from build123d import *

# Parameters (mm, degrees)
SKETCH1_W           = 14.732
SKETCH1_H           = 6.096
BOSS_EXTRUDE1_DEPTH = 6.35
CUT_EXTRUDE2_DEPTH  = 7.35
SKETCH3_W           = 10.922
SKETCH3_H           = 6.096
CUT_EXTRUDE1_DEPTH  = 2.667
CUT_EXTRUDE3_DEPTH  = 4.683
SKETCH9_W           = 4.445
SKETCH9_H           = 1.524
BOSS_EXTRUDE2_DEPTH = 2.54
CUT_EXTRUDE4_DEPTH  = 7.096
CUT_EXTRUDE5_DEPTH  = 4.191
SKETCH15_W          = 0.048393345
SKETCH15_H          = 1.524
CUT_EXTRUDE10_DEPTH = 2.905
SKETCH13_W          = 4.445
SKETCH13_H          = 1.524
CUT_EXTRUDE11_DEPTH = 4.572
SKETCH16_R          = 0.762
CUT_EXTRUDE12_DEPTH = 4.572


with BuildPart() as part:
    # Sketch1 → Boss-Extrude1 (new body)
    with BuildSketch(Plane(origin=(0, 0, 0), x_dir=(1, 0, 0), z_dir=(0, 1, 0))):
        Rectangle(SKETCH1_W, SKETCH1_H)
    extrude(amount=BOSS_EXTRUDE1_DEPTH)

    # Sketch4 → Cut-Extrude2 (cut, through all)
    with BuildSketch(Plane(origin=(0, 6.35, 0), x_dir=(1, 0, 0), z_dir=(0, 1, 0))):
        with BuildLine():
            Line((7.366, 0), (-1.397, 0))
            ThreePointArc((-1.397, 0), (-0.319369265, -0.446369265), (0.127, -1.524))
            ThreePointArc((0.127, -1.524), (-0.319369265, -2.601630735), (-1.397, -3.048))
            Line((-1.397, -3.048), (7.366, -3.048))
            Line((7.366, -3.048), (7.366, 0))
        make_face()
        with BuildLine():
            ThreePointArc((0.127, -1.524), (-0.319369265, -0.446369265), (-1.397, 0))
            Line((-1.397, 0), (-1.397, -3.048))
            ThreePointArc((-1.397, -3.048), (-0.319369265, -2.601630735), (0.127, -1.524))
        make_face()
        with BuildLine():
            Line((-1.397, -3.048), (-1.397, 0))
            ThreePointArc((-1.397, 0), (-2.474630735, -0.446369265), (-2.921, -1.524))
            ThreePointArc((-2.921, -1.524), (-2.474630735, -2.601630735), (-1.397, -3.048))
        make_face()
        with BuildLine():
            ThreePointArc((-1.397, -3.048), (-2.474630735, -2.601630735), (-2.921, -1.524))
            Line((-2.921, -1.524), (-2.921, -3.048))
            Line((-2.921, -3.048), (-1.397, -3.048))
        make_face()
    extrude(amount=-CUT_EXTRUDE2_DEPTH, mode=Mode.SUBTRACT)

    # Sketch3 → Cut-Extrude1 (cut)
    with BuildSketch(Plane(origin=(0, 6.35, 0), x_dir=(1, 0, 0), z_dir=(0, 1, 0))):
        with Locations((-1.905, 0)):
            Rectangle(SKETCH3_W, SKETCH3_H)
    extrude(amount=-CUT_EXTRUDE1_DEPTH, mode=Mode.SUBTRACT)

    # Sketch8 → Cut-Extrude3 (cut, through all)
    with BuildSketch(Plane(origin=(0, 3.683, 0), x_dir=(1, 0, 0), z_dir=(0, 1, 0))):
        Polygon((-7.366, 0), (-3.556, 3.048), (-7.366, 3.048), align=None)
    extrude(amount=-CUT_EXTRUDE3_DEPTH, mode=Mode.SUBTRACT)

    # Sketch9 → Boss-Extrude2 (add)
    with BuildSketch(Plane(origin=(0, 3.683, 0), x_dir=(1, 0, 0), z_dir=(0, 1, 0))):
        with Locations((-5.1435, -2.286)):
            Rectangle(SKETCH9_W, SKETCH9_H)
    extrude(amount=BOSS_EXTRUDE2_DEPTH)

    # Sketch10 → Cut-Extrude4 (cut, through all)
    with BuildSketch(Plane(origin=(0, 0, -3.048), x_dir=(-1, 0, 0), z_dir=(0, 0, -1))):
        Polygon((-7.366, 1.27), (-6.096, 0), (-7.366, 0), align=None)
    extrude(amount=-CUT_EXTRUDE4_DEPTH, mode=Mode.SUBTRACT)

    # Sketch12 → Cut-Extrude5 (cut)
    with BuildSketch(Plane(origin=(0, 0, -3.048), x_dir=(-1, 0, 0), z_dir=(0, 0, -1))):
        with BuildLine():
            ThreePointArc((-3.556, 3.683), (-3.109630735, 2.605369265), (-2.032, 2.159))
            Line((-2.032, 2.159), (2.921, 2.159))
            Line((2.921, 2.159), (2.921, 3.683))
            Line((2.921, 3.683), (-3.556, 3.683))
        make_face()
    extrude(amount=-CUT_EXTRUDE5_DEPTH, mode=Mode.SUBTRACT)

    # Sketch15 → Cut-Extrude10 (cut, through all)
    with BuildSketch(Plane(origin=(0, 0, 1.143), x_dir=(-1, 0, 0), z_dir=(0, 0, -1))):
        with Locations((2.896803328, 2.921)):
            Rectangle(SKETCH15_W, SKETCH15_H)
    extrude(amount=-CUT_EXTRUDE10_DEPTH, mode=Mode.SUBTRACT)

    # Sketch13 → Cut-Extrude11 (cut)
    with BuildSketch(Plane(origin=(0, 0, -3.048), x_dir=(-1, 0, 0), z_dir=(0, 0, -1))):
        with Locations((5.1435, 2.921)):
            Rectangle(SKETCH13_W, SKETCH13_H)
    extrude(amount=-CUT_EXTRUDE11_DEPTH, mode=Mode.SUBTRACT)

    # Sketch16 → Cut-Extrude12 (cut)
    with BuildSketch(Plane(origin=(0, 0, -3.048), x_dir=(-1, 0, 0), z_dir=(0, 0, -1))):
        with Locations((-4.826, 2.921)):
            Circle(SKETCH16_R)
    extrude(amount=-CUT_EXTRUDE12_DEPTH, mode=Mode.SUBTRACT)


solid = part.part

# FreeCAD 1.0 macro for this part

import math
import FreeCAD as App
import Part
import Sketcher
from FreeCAD import Vector
Q = App.Units.Quantity


def add_polygon(sketch, points):
    """Adds a closed chain of lines whose ends are joined by coincident constraints."""
    first, n = sketch.GeometryCount, len(points)
    for a, b in zip(points, points[1:] + points[:1]):
        sketch.addGeometry(Part.LineSegment(App.Vector(*a, 0), App.Vector(*b, 0)), False)
    for i in range(n):
        sketch.addConstraint(Sketcher.Constraint("Coincident", first + i, 2, first + (i + 1) % n, 1))

doc = App.newDocument("Part")
body = doc.addObject("PartDesign::Body", "Body")

sketch1 = body.newObject("Sketcher::SketchObject", "Sketch")
sketch1.AttachmentSupport = (doc.getObject("XZ_Plane"), [""])
sketch1.MapMode = "FlatFace"
add_polygon(sketch1, [(-7, -3), (-7, 3), (7, 3), (7, -3)])
sketch1.addConstraint(Sketcher.Constraint("Vertical", 0))
sketch1.addConstraint(Sketcher.Constraint("Horizontal", 1))
sketch1.addConstraint(Sketcher.Constraint("Vertical", 2))
sketch1.addConstraint(Sketcher.Constraint("Horizontal", 3))
sketch1.addConstraint(Sketcher.Constraint("Symmetric", 0, 2, 2, 2, -1, 1))
sketch1.addConstraint(Sketcher.Constraint("DistanceX", 1, 1, 1, 2, Q("0.58 in")))
sketch1.addConstraint(Sketcher.Constraint("DistanceY", 0, 1, 0, 2, Q("0.24 in")))
pad1 = body.newObject("PartDesign::Pad", "Pad")
pad1.Profile = sketch1
pad1.Length = Q("0.25 in")
pad1.Reversed = True

sketch2 = body.newObject("Sketcher::SketchObject", "Sketch001")
sketch2.AttachmentSupport = (doc.getObject("XZ_Plane"), [""])
sketch2.MapMode = "FlatFace"
sketch2.AttachmentOffset = App.Placement(Vector(0, 0, -0.25 * 25.4), App.Rotation())
sketch2.addGeometry(Part.LineSegment(Vector(7.4, 3, 0), Vector(7.4, 0, 0)), False)
sketch2.addGeometry(Part.LineSegment(Vector(7.4, 0, 0), Vector(-1.4, 0, 0)), False)
sketch2.addGeometry(Part.ArcOfCircle(Part.Circle(Vector(-1.4, 1.5, 0), Vector(0, 0, 1), 1.5), math.radians(180), math.radians(270)), False)
sketch2.addGeometry(Part.LineSegment(Vector(-2.9, 1.5, 0), Vector(-2.9, 3, 0)), False)
sketch2.addGeometry(Part.LineSegment(Vector(-2.9, 3, 0), Vector(7.4, 3, 0)), False)
sketch2.addConstraint(Sketcher.Constraint("Coincident", 0, 2, 1, 1))
sketch2.addConstraint(Sketcher.Constraint("Tangent", 1, 2, 2, 2))
sketch2.addConstraint(Sketcher.Constraint("Tangent", 2, 1, 3, 1))
sketch2.addConstraint(Sketcher.Constraint("Coincident", 3, 2, 4, 1))
sketch2.addConstraint(Sketcher.Constraint("Coincident", 4, 2, 0, 1))
sketch2.addConstraint(Sketcher.Constraint("Vertical", 0))
sketch2.addConstraint(Sketcher.Constraint("Horizontal", 1))
sketch2.addConstraint(Sketcher.Constraint("Vertical", 3))
sketch2.addConstraint(Sketcher.Constraint("Horizontal", 4))
sketch2.addConstraint(Sketcher.Constraint("PointOnObject", 0, 2, -1))
sketch2.addConstraint(Sketcher.Constraint("Radius", 2, Q("0.06 in")))
sketch2.addConstraint(Sketcher.Constraint("DistanceY", 0, 2, 0, 1, Q("0.12 in")))
sketch2.addConstraint(Sketcher.Constraint("DistanceX", 1, 2, 1, 1, Q("0.345 in")))
sketch2.addConstraint(Sketcher.Constraint("DistanceX", -1, 1, 0, 2, Q("0.29 in")))
pocket1 = body.newObject("PartDesign::Pocket", "Pocket")
pocket1.Profile = sketch2
pocket1.Type = "ThroughAll"
pocket1.Reversed = True

sketch3 = body.newObject("Sketcher::SketchObject", "Sketch002")
sketch3.AttachmentSupport = (doc.getObject("XZ_Plane"), [""])
sketch3.MapMode = "FlatFace"
sketch3.AttachmentOffset = App.Placement(Vector(0, 0, -0.25 * 25.4), App.Rotation())
add_polygon(sketch3, [(-7, -3), (-7, 3), (4, 3), (4, -3)])
sketch3.addConstraint(Sketcher.Constraint("Vertical", 0))
sketch3.addConstraint(Sketcher.Constraint("Horizontal", 1))
sketch3.addConstraint(Sketcher.Constraint("Vertical", 2))
sketch3.addConstraint(Sketcher.Constraint("Horizontal", 3))
sketch3.addConstraint(Sketcher.Constraint("DistanceX", 1, 1, 1, 2, Q("0.43 in")))
sketch3.addConstraint(Sketcher.Constraint("DistanceY", 0, 1, 0, 2, Q("0.24 in")))
sketch3.addConstraint(Sketcher.Constraint("DistanceX", 0, 2, -1, 1, Q("0.29 in")))
sketch3.addConstraint(Sketcher.Constraint("DistanceY", -1, 1, 0, 2, Q("0.12 in")))
pocket2 = body.newObject("PartDesign::Pocket", "Pocket001")
pocket2.Profile = sketch3
pocket2.Length = Q("0.105 in")
pocket2.Reversed = True

sketch4 = body.newObject("Sketcher::SketchObject", "Sketch003")
sketch4.AttachmentSupport = (doc.getObject("XZ_Plane"), [""])
sketch4.MapMode = "FlatFace"
sketch4.AttachmentOffset = App.Placement(Vector(0, 0, -0.145 * 25.4), App.Rotation())
add_polygon(sketch4, [(-7.4, 0), (-3.6, -3), (-7.4, -3)])
sketch4.addConstraint(Sketcher.Constraint("Horizontal", 1))
sketch4.addConstraint(Sketcher.Constraint("Vertical", 2))
sketch4.addConstraint(Sketcher.Constraint("PointOnObject", 2, 2, -1))
sketch4.addConstraint(Sketcher.Constraint("DistanceX", 1, 2, 1, 1, Q("0.15 in")))
sketch4.addConstraint(Sketcher.Constraint("DistanceY", 2, 1, 2, 2, Q("0.12 in")))
sketch4.addConstraint(Sketcher.Constraint("DistanceX", 0, 2, -1, 1, Q("0.14 in")))
pocket3 = body.newObject("PartDesign::Pocket", "Pocket002")
pocket3.Profile = sketch4
pocket3.Type = "ThroughAll"
pocket3.Reversed = True

sketch5 = body.newObject("Sketcher::SketchObject", "Sketch004")
sketch5.AttachmentSupport = (doc.getObject("XZ_Plane"), [""])
sketch5.MapMode = "FlatFace"
sketch5.AttachmentOffset = App.Placement(Vector(0, 0, -0.145 * 25.4), App.Rotation())
add_polygon(sketch5, [(-7.4, 1.5), (-7.4, 3), (-2.9, 3), (-2.9, 1.5)])
sketch5.addConstraint(Sketcher.Constraint("Vertical", 0))
sketch5.addConstraint(Sketcher.Constraint("Horizontal", 1))
sketch5.addConstraint(Sketcher.Constraint("Vertical", 2))
sketch5.addConstraint(Sketcher.Constraint("Horizontal", 3))
sketch5.addConstraint(Sketcher.Constraint("DistanceY", 0, 1, 0, 2, Q("0.06 in")))
sketch5.addConstraint(Sketcher.Constraint("DistanceX", 1, 1, 1, 2, Q("0.175 in")))
sketch5.addConstraint(Sketcher.Constraint("DistanceX", 0, 2, -1, 1, Q("0.29 in")))
sketch5.addConstraint(Sketcher.Constraint("DistanceY", -1, 1, 0, 2, Q("0.12 in")))
pad2 = body.newObject("PartDesign::Pad", "Pad001")
pad2.Profile = sketch5
pad2.Length = Q("0.1 in")
pad2.Reversed = True

sketch6 = body.newObject("Sketcher::SketchObject", "Sketch005")
sketch6.AttachmentSupport = (doc.getObject("XY_Plane"), [""])
sketch6.MapMode = "FlatFace"
sketch6.AttachmentOffset = App.Placement(Vector(0, 0, -0.12 * 25.4), App.Rotation())
add_polygon(sketch6, [(6.1, 0), (7.4, 1.3), (7.4, 0)])
sketch6.addConstraint(Sketcher.Constraint("Vertical", 1))
sketch6.addConstraint(Sketcher.Constraint("Horizontal", 2))
sketch6.addConstraint(Sketcher.Constraint("PointOnObject", 1, 2, -1))
sketch6.addConstraint(Sketcher.Constraint("Equal", 2, 1))
sketch6.addConstraint(Sketcher.Constraint("DistanceX", 2, 2, 2, 1, Q("0.05 in")))
sketch6.addConstraint(Sketcher.Constraint("DistanceX", -1, 1, 0, 2, Q("0.29 in")))
pocket4 = body.newObject("PartDesign::Pocket", "Pocket003")
pocket4.Profile = sketch6
pocket4.Type = "ThroughAll"
pocket4.Reversed = True

sketch7 = body.newObject("Sketcher::SketchObject", "Sketch006")
sketch7.AttachmentSupport = (doc.getObject("XY_Plane"), [""])
sketch7.MapMode = "FlatFace"
sketch7.AttachmentOffset = App.Placement(Vector(0, 0, -0.12 * 25.4), App.Rotation())
sketch7.addGeometry(Part.ArcOfCircle(Part.Circle(Vector(2, 3.7, 0), Vector(0, 0, 1), 1.5), math.radians(-90), math.radians(0)), False)
sketch7.addGeometry(Part.LineSegment(Vector(2, 2.2, 0), Vector(-2.9, 2.2, 0)), False)
sketch7.addGeometry(Part.LineSegment(Vector(-2.9, 2.2, 0), Vector(-2.9, 3.7, 0)), False)
sketch7.addGeometry(Part.LineSegment(Vector(-2.9, 3.7, 0), Vector(3.6, 3.7, 0)), False)
sketch7.addConstraint(Sketcher.Constraint("Tangent", 0, 1, 1, 1))
sketch7.addConstraint(Sketcher.Constraint("Coincident", 1, 2, 2, 1))
sketch7.addConstraint(Sketcher.Constraint("Coincident", 2, 2, 3, 1))
sketch7.addConstraint(Sketcher.Constraint("Coincident", 3, 2, 0, 2))
sketch7.addConstraint(Sketcher.Constraint("Horizontal", 1))
sketch7.addConstraint(Sketcher.Constraint("Vertical", 2))
sketch7.addConstraint(Sketcher.Constraint("Horizontal", 3))
sketch7.addConstraint(Sketcher.Constraint("Horizontal", 0, 3, 2, 2))
sketch7.addConstraint(Sketcher.Constraint("Radius", 0, Q("0.06 in")))
sketch7.addConstraint(Sketcher.Constraint("DistanceX", 1, 2, 1, 1, Q("0.195 in")))
sketch7.addConstraint(Sketcher.Constraint("DistanceX", -1, 1, 0, 3, Q("0.08 in")))
sketch7.addConstraint(Sketcher.Constraint("DistanceY", -1, 1, 0, 3, Q("0.145 in")))
pocket5 = body.newObject("PartDesign::Pocket", "Pocket004")
pocket5.Profile = sketch7
pocket5.Length = Q("0.165 in")
pocket5.Reversed = True

sketch8 = body.newObject("Sketcher::SketchObject", "Sketch007")
sketch8.AttachmentSupport = (doc.getObject("XY_Plane"), [""])
sketch8.MapMode = "FlatFace"
sketch8.AttachmentOffset = App.Placement(Vector(0, 0, 0.045 * 25.4), App.Rotation())
add_polygon(sketch8, [(-2.873, 3.683), (-2.873, 2.159), (-2.921, 2.159), (-2.921, 3.683)])
sketch8.addConstraint(Sketcher.Constraint("Vertical", 0))
sketch8.addConstraint(Sketcher.Constraint("Horizontal", 1))
sketch8.addConstraint(Sketcher.Constraint("Vertical", 2))
sketch8.addConstraint(Sketcher.Constraint("Horizontal", 3))
sketch8.addConstraint(Sketcher.Constraint("DistanceY", 0, 2, 0, 1, Q("0.06 in")))
sketch8.addConstraint(Sketcher.Constraint("DistanceY", -1, 1, 0, 2, Q("0.085 in")))
sketch8.addConstraint(Sketcher.Constraint("DistanceX", 1, 2, -1, 1, Q("0.115 in")))
sketch8.addConstraint(Sketcher.Constraint("DistanceX", 1, 2, 1, 1, Q("0.048393 mm")))
pocket6 = body.newObject("PartDesign::Pocket", "Pocket005")
pocket6.Profile = sketch8
pocket6.Type = "ThroughAll"
pocket6.Reversed = True

sketch9 = body.newObject("Sketcher::SketchObject", "Sketch008")
sketch9.AttachmentSupport = (doc.getObject("XY_Plane"), [""])
sketch9.MapMode = "FlatFace"
sketch9.AttachmentOffset = App.Placement(Vector(0, 0, -0.12 * 25.4), App.Rotation())
add_polygon(sketch9, [(-2.9, 3.7), (-2.9, 2.2), (-7.4, 2.2), (-7.4, 3.7)])
sketch9.addConstraint(Sketcher.Constraint("Vertical", 0))
sketch9.addConstraint(Sketcher.Constraint("Horizontal", 1))
sketch9.addConstraint(Sketcher.Constraint("Vertical", 2))
sketch9.addConstraint(Sketcher.Constraint("Horizontal", 3))
sketch9.addConstraint(Sketcher.Constraint("DistanceY", 0, 2, 0, 1, Q("0.06 in")))
sketch9.addConstraint(Sketcher.Constraint("DistanceX", 1, 2, 1, 1, Q("0.175 in")))
sketch9.addConstraint(Sketcher.Constraint("DistanceX", 1, 2, -1, 1, Q("0.29 in")))
sketch9.addConstraint(Sketcher.Constraint("DistanceY", -1, 1, 0, 2, Q("0.085 in")))
pocket7 = body.newObject("PartDesign::Pocket", "Pocket006")
pocket7.Profile = sketch9
pocket7.Length = Q("0.18 in")
pocket7.Reversed = True

sketch10 = body.newObject("Sketcher::SketchObject", "Sketch009")
sketch10.AttachmentSupport = (doc.getObject("XY_Plane"), [""])
sketch10.MapMode = "FlatFace"
sketch10.AttachmentOffset = App.Placement(Vector(0, 0, -0.12 * 25.4), App.Rotation())
sketch10.addGeometry(Part.Circle(Vector(4.8, 2.9, 0), Vector(0, 0, 1), 0.8), False)
sketch10.addConstraint(Sketcher.Constraint("Diameter", 0, Q("0.06 in")))
sketch10.addConstraint(Sketcher.Constraint("DistanceX", -1, 1, 0, 3, Q("0.19 in")))
sketch10.addConstraint(Sketcher.Constraint("DistanceY", -1, 1, 0, 3, Q("0.115 in")))
pocket8 = body.newObject("PartDesign::Pocket", "Pocket007")
pocket8.Profile = sketch10
pocket8.Length = Q("0.18 in")
pocket8.Reversed = True

doc.recompute()
